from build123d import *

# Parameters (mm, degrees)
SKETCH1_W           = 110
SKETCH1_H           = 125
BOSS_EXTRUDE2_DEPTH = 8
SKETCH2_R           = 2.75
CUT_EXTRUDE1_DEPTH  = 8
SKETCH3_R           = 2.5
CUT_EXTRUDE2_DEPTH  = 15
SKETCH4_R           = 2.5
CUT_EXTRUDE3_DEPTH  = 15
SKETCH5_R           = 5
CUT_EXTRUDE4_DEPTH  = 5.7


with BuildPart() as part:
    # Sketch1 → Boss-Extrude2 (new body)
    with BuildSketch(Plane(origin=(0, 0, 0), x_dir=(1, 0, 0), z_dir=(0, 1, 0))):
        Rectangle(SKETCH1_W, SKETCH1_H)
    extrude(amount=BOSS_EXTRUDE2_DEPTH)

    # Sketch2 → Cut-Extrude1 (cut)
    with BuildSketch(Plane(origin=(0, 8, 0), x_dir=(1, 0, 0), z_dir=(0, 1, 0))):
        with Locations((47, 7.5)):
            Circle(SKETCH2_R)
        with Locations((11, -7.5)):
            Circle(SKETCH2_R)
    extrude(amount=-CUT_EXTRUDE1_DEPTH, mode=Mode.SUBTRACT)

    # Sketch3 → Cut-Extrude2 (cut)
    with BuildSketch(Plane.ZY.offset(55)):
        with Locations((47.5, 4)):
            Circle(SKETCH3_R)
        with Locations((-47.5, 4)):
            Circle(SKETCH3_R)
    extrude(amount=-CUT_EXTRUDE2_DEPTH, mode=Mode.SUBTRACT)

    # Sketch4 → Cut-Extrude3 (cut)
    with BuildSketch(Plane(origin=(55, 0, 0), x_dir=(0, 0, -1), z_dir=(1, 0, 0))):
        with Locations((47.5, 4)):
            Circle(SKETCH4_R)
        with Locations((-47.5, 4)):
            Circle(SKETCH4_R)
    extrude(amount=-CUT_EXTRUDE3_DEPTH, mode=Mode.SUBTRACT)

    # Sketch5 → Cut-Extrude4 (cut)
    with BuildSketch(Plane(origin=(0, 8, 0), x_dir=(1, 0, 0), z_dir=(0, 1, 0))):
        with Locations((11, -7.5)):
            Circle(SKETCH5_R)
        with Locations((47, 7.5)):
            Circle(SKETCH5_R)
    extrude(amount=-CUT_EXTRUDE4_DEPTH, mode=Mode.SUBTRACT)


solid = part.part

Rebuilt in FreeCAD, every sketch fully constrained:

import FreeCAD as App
import Part
import Sketcher


def add_polygon(sketch, points):
    """Adds a closed chain of lines whose ends are joined by coincident constraints."""
    first, n = sketch.GeometryCount, len(points)
    for a, b in zip(points, points[1:] + points[:1]):
        sketch.addGeometry(Part.LineSegment(App.Vector(*a, 0), App.Vector(*b, 0)), False)
    for i in range(n):
        sketch.addConstraint(Sketcher.Constraint("Coincident", first + i, 2, first + (i + 1) % n, 1))

doc = App.newDocument("Part")
params = doc.addObject("Spreadsheet::Sheet", "Params")
for row, (alias, value) in enumerate([
    ("sketch1_width", "110 mm"),
    ("sketch1_height", "125 mm"),
    ("pad1_length", "8 mm"),
    ("sketch2_diameter", "5.5 mm"),
    ("pocket1_length", "8 mm"),
    ("sketch3_diameter", "5 mm"),
    ("pocket2_length", "15 mm"),
    ("sketch4_diameter", "5 mm"),
    ("pocket3_length", "15 mm"),
    ("sketch5_diameter", "10 mm"),
    ("pocket4_length", "5.7 mm"),
], start=1):
    params.set(f"A{row}", alias)
    params.set(f"B{row}", "=" + value)
    params.setAlias(f"B{row}", alias)

body = doc.addObject("PartDesign::Body", "Body")

sketch1 = body.newObject("Sketcher::SketchObject", "Sketch")
sketch1.AttachmentSupport = (doc.getObject("XZ_Plane"), [""])
sketch1.MapMode = "FlatFace"
add_polygon(sketch1, [(-55, -62.5), (-55, 62.5), (55, 62.5), (55, -62.5)])
sketch1.addConstraint(Sketcher.Constraint("Vertical", 0))
sketch1.addConstraint(Sketcher.Constraint("Horizontal", 1))
sketch1.addConstraint(Sketcher.Constraint("Vertical", 2))
sketch1.addConstraint(Sketcher.Constraint("Horizontal", 3))
sketch1.addConstraint(Sketcher.Constraint("Symmetric", 0, 2, 2, 2, -1, 1))
sketch1.addConstraint(Sketcher.Constraint("DistanceX", 1, 1, 1, 2, 110.0))
sketch1.addConstraint(Sketcher.Constraint("DistanceY", 0, 1, 0, 2, 125.0))
sketch1.setExpression("Constraints[9]", "Params.sketch1_width")
sketch1.setExpression("Constraints[10]", "Params.sketch1_height")
pad1 = body.newObject("PartDesign::Pad", "Pad")
pad1.Profile = sketch1
pad1.setExpression("Length", "Params.pad1_length")
pad1.Reversed = True

sketch2 = body.newObject("Sketcher::SketchObject", "Sketch001")
sketch2.AttachmentSupport = (doc.getObject("XZ_Plane"), [""])
sketch2.MapMode = "FlatFace"
sketch2.AttachmentOffset = App.Placement(App.Vector(0, 0, -8), App.Rotation())
sketch2.addGeometry(Part.Circle(App.Vector(47, -7.5, 0), App.Vector(0, 0, 1), 2.75), False)
sketch2.addGeometry(Part.Circle(App.Vector(11, 7.5, 0), App.Vector(0, 0, 1), 2.75), False)
sketch2.addConstraint(Sketcher.Constraint("Equal", 0, 1))
sketch2.addConstraint(Sketcher.Constraint("Diameter", 0, 5.5))
sketch2.addConstraint(Sketcher.Constraint("DistanceX", -1, 1, 0, 3, 47.0))
sketch2.addConstraint(Sketcher.Constraint("DistanceX", -1, 1, 1, 3, 11.0))
sketch2.addConstraint(Sketcher.Constraint("DistanceY", 0, 3, 1, 3, 15.0))
sketch2.addConstraint(Sketcher.Constraint("DistanceY", 0, 3, -1, 1, 7.5))
sketch2.setExpression("Constraints[1]", "Params.sketch2_diameter")
pocket1 = body.newObject("PartDesign::Pocket", "Pocket")
pocket1.Profile = sketch2
pocket1.setExpression("Length", "Params.pocket1_length")
pocket1.Reversed = True

sketch3 = body.newObject("Sketcher::SketchObject", "Sketch002")
sketch3.AttachmentSupport = (doc.getObject("YZ_Plane"), [""])
sketch3.MapMode = "FlatFace"
sketch3.AttachmentOffset = App.Placement(App.Vector(0, 0, -55), App.Rotation())
sketch3.addGeometry(Part.Circle(App.Vector(4, 47.5, 0), App.Vector(0, 0, 1), 2.5), False)
sketch3.addGeometry(Part.Circle(App.Vector(4, -47.5, 0), App.Vector(0, 0, 1), 2.5), False)
sketch3.addConstraint(Sketcher.Constraint("Equal", 0, 1))
sketch3.addConstraint(Sketcher.Constraint("Symmetric", 0, 3, 1, 3, -1))
sketch3.addConstraint(Sketcher.Constraint("Diameter", 0, 5.0))
sketch3.addConstraint(Sketcher.Constraint("DistanceX", -1, 1, 0, 3, 4.0))
sketch3.addConstraint(Sketcher.Constraint("DistanceY", 1, 3, 0, 3, 95.0))
sketch3.setExpression("Constraints[2]", "Params.sketch3_diameter")
pocket2 = body.newObject("PartDesign::Pocket", "Pocket001")
pocket2.Profile = sketch3
pocket2.setExpression("Length", "Params.pocket2_length")
pocket2.Reversed = True

sketch4 = body.newObject("Sketcher::SketchObject", "Sketch003")
sketch4.AttachmentSupport = (doc.getObject("YZ_Plane"), [""])
sketch4.MapMode = "FlatFace"
sketch4.AttachmentOffset = App.Placement(App.Vector(0, 0, 55), App.Rotation())
sketch4.addGeometry(Part.Circle(App.Vector(4, -47.5, 0), App.Vector(0, 0, 1), 2.5), False)
sketch4.addGeometry(Part.Circle(App.Vector(4, 47.5, 0), App.Vector(0, 0, 1), 2.5), False)
sketch4.addConstraint(Sketcher.Constraint("Equal", 0, 1))
sketch4.addConstraint(Sketcher.Constraint("Symmetric", 0, 3, 1, 3, -1))
sketch4.addConstraint(Sketcher.Constraint("Diameter", 0, 5.0))
sketch4.addConstraint(Sketcher.Constraint("DistanceX", -1, 1, 0, 3, 4.0))
sketch4.addConstraint(Sketcher.Constraint("DistanceY", 0, 3, 1, 3, 95.0))
sketch4.setExpression("Constraints[2]", "Params.sketch4_diameter")
pocket3 = body.newObject("PartDesign::Pocket", "Pocket002")
pocket3.Profile = sketch4
pocket3.setExpression("Length", "Params.pocket3_length")

sketch5 = body.newObject("Sketcher::SketchObject", "Sketch004")
sketch5.AttachmentSupport = (doc.getObject("XZ_Plane"), [""])
sketch5.MapMode = "FlatFace"
sketch5.AttachmentOffset = App.Placement(App.Vector(0, 0, -8), App.Rotation())
sketch5.addGeometry(Part.Circle(App.Vector(11, 7.5, 0), App.Vector(0, 0, 1), 5), False)
sketch5.addGeometry(Part.Circle(App.Vector(47, -7.5, 0), App.Vector(0, 0, 1), 5), False)
sketch5.addConstraint(Sketcher.Constraint("Equal", 0, 1))
sketch5.addConstraint(Sketcher.Constraint("Diameter", 0, 10.0))
sketch5.addConstraint(Sketcher.Constraint("DistanceX", -1, 1, 0, 3, 11.0))
sketch5.addConstraint(Sketcher.Constraint("DistanceX", -1, 1, 1, 3, 47.0))
sketch5.addConstraint(Sketcher.Constraint("DistanceY", 1, 3, 0, 3, 15.0))
sketch5.addConstraint(Sketcher.Constraint("DistanceY", -1, 1, 0, 3, 7.5))
sketch5.setExpression("Constraints[1]", "Params.sketch5_diameter")
pocket4 = body.newObject("PartDesign::Pocket", "Pocket003")
pocket4.Profile = sketch5
pocket4.setExpression("Length", "Params.pocket4_length")
pocket4.Reversed = True

doc.recompute()
